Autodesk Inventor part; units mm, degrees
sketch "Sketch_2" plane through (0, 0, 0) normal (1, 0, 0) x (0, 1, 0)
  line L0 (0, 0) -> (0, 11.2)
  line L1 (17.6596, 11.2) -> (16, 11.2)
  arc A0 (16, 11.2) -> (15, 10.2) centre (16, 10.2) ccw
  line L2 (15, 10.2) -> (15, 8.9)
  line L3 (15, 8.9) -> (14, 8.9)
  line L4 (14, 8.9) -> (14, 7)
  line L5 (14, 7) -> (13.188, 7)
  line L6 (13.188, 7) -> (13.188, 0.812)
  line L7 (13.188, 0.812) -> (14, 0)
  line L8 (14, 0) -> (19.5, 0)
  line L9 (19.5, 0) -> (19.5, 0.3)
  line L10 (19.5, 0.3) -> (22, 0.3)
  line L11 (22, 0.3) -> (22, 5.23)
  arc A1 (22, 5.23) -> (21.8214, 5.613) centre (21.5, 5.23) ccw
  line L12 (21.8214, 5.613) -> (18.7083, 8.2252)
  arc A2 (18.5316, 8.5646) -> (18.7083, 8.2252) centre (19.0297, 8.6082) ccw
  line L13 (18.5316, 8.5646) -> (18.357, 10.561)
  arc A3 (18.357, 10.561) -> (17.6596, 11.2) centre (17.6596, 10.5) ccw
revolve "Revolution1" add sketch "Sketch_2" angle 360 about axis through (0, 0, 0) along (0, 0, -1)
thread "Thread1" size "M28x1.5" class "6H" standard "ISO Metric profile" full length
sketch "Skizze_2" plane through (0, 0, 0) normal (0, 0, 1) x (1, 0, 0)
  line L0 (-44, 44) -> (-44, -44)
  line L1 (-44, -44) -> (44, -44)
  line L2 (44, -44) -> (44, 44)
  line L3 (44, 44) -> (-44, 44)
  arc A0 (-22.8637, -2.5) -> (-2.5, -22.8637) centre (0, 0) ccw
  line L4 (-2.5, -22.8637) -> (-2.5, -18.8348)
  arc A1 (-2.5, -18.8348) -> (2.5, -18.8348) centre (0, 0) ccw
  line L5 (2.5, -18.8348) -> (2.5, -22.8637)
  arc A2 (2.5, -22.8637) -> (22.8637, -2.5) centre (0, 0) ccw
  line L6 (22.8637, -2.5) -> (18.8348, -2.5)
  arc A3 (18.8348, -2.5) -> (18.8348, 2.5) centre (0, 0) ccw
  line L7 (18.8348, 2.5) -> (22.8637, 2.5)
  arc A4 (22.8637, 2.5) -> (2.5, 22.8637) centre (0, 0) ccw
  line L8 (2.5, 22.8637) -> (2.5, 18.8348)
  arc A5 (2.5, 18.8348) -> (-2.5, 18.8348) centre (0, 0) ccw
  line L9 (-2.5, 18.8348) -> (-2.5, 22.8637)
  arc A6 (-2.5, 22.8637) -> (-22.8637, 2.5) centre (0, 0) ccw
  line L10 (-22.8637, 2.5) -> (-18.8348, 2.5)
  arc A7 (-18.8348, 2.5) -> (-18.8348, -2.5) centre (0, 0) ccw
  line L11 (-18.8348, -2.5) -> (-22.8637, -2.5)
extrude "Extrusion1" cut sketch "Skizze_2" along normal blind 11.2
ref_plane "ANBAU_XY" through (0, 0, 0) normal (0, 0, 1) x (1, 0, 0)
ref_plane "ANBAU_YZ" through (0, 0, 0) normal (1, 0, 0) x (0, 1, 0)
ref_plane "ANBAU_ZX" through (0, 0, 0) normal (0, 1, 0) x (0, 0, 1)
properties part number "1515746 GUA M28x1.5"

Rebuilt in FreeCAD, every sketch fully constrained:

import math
import FreeCAD as App
import Part
import Sketcher
from FreeCAD import Vector
Q = App.Units.Quantity


def add_polygon(sketch, points):
    """Adds a closed chain of lines whose ends are joined by coincident constraints."""
    first, n = sketch.GeometryCount, len(points)
    for a, b in zip(points, points[1:] + points[:1]):
        sketch.addGeometry(Part.LineSegment(App.Vector(*a, 0), App.Vector(*b, 0)), False)
    for i in range(n):
        sketch.addConstraint(Sketcher.Constraint("Coincident", first + i, 2, first + (i + 1) % n, 1))

doc = App.newDocument("Part")
body = doc.addObject("PartDesign::Body", "Body")

sketch1 = doc.addObject("Sketcher::SketchObject", "Sketch")
body.addObject(sketch1)
sketch1.AttachmentSupport = (doc.YZ_Plane, [""])
sketch1.MapMode = "FlatFace"
sketch1.addGeometry([
    Part.ArcOfCircle(Part.Circle(Vector(17.66, 10.5, 0), Vector(0, 0, 1), 0.7), math.radians(5), math.radians(90)),
    Part.LineSegment(Vector(17.66, 11.2, 0), Vector(16, 11.2, 0)),
    Part.ArcOfCircle(Part.Circle(Vector(16, 10.2, 0), Vector(0, 0, 1), 1), math.radians(90), math.radians(180)),
    Part.LineSegment(Vector(15, 10.2, 0), Vector(15, 8.9, 0)),
    Part.LineSegment(Vector(15, 8.9, 0), Vector(14, 8.9, 0)),
    Part.LineSegment(Vector(14, 8.9, 0), Vector(14, 7, 0)),
    Part.LineSegment(Vector(14, 7, 0), Vector(13.19, 7, 0)),
    Part.LineSegment(Vector(13.19, 7, 0), Vector(13.19, 0.81, 0)),
    Part.LineSegment(Vector(13.19, 0.81, 0), Vector(14, 0, 0)),
    Part.LineSegment(Vector(14, 0, 0), Vector(19.5, 0, 0)),
    Part.LineSegment(Vector(19.5, 0, 0), Vector(19.5, 0.3, 0)),
    Part.LineSegment(Vector(19.5, 0.3, 0), Vector(22, 0.3, 0)),
    Part.LineSegment(Vector(22, 0.3, 0), Vector(22, 5.23, 0)),
    Part.ArcOfCircle(Part.Circle(Vector(21.5, 5.23, 0), Vector(0, 0, 1), 0.5), math.radians(0), math.radians(50)),
    Part.LineSegment(Vector(21.82, 5.61, 0), Vector(18.71, 8.23, 0)),
    Part.ArcOfCircle(Part.Circle(Vector(19.03, 8.61, 0), Vector(0, 0, 1), 0.5), math.radians(-175), math.radians(-130)),
    Part.LineSegment(Vector(18.53, 8.56, 0), Vector(18.36, 10.56, 0)),
], False)
sketch1.addConstraint([
    Sketcher.Constraint("Tangent", 0, 2, 1, 1),
    Sketcher.Constraint("Tangent", 1, 2, 2, 1),
    Sketcher.Constraint("Tangent", 2, 2, 3, 1),
    Sketcher.Constraint("Coincident", 3, 2, 4, 1),
    Sketcher.Constraint("Coincident", 4, 2, 5, 1),
    Sketcher.Constraint("Coincident", 5, 2, 6, 1),
    Sketcher.Constraint("Coincident", 6, 2, 7, 1),
    Sketcher.Constraint("Coincident", 7, 2, 8, 1),
    Sketcher.Constraint("Coincident", 8, 2, 9, 1),
    Sketcher.Constraint("Coincident", 9, 2, 10, 1),
    Sketcher.Constraint("Coincident", 10, 2, 11, 1),
    Sketcher.Constraint("Coincident", 11, 2, 12, 1),
    Sketcher.Constraint("Tangent", 12, 2, 13, 1),
    Sketcher.Constraint("Tangent", 13, 2, 14, 1),
    Sketcher.Constraint("Tangent", 14, 2, 15, 2),
    Sketcher.Constraint("Tangent", 15, 1, 16, 1),
    Sketcher.Constraint("Tangent", 16, 2, 0, 1),
    Sketcher.Constraint("Horizontal", 1),
    Sketcher.Constraint("Vertical", 3),
    Sketcher.Constraint("Horizontal", 4),
    Sketcher.Constraint("Vertical", 5),
    Sketcher.Constraint("Horizontal", 6),
    Sketcher.Constraint("Vertical", 7),
    Sketcher.Constraint("Horizontal", 9),
    Sketcher.Constraint("Vertical", 10),
    Sketcher.Constraint("Horizontal", 11),
    Sketcher.Constraint("Vertical", 12),
    Sketcher.Constraint("Equal", 13, 15),
    Sketcher.Constraint("PointOnObject", 8, 2, -1),
    Sketcher.Constraint("Vertical", 5, 2, 8, 2),
    Sketcher.Constraint("Radius", 2, 1.0),
    Sketcher.Constraint("Radius", 0, 0.7),
    Sketcher.Constraint("Radius", 13, 0.5),
    Sketcher.Constraint("DistanceX", 4, 2, 4, 1, 1.0),
    Sketcher.Constraint("Angle", 8, Q("-45 deg")),
    Sketcher.Constraint("Angle", 14, Q("140 deg")),
    Sketcher.Constraint("DistanceX", 9, 1, 9, 2, 5.5),
    Sketcher.Constraint("DistanceX", 11, 1, 11, 2, 2.5),
    Sketcher.Constraint("DistanceY", 3, 2, 3, 1, 1.3),
    Sketcher.Constraint("DistanceY", 5, 2, 5, 1, 1.9),
    Sketcher.Constraint("DistanceY", 10, 1, 10, 2, 0.3),
    Sketcher.Constraint("DistanceX", -1, 1, 2, 3, 16.0),
    Sketcher.Constraint("DistanceY", -1, 1, 5, 2, 7.0),
    Sketcher.Constraint("DistanceY", 12, 1, 12, 2, 4.93),
    Sketcher.Constraint("DistanceX", 6, 2, 6, 1, 0.812),
    Sketcher.Constraint("DistanceX", 0, 3, 15, 3, 1.37),
    Sketcher.Constraint("Distance", 16, 2.004),
])
revolution = doc.addObject("PartDesign::Revolution", "Revolution")
body.addObject(revolution)
revolution.Profile = sketch1
revolution.ReferenceAxis = (sketch1, ["V_Axis"])
revolution.Angle = 360

sketch2 = doc.addObject("Sketcher::SketchObject", "Sketch001")
body.addObject(sketch2)
sketch2.AttachmentSupport = (doc.XY_Plane, [""])
sketch2.MapMode = "FlatFace"
add_polygon(sketch2, [(44, 44), (-44, 44), (-44, -44), (44, -44)])
sketch2.addGeometry(Part.ArcOfCircle(Part.Circle(Vector(0, 0, 0), Vector(0, 0, 1), 23), math.radians(-174), math.radians(-96)), False)
sketch2.addGeometry(Part.LineSegment(Vector(-22.9, -2.5, 0), Vector(-18.8, -2.5, 0)), False)
sketch2.addGeometry(Part.ArcOfCircle(Part.Circle(Vector(0, 0, 0), Vector(0, 0, 1), 19), math.radians(172.44), math.radians(187.56)), False)
sketch2.addGeometry(Part.LineSegment(Vector(-18.8, 2.5, 0), Vector(-22.9, 2.5, 0)), False)
sketch2.addGeometry(Part.ArcOfCircle(Part.Circle(Vector(0, 0, 0), Vector(0, 0, 1), 23), math.radians(96), math.radians(174)), False)
sketch2.addGeometry(Part.LineSegment(Vector(-2.5, 22.9, 0), Vector(-2.5, 18.8, 0)), False)
sketch2.addGeometry(Part.ArcOfCircle(Part.Circle(Vector(0, 0, 0), Vector(0, 0, 1), 19), math.radians(82.44), math.radians(97.56)), False)
sketch2.addGeometry(Part.LineSegment(Vector(2.5, 18.8, 0), Vector(2.5, 22.9, 0)), False)
sketch2.addGeometry(Part.ArcOfCircle(Part.Circle(Vector(0, 0, 0), Vector(0, 0, 1), 23), math.radians(6), math.radians(84)), False)
sketch2.addGeometry(Part.LineSegment(Vector(22.9, 2.5, 0), Vector(18.8, 2.5, 0)), False)
sketch2.addGeometry(Part.ArcOfCircle(Part.Circle(Vector(0, 0, 0), Vector(0, 0, 1), 19), math.radians(-7.56), math.radians(7.56)), False)
sketch2.addGeometry(Part.LineSegment(Vector(18.8, -2.5, 0), Vector(22.9, -2.5, 0)), False)
sketch2.addGeometry(Part.ArcOfCircle(Part.Circle(Vector(0, 0, 0), Vector(0, 0, 1), 23), math.radians(-84), math.radians(-6)), False)
sketch2.addGeometry(Part.LineSegment(Vector(2.5, -22.9, 0), Vector(2.5, -18.8, 0)), False)
sketch2.addGeometry(Part.ArcOfCircle(Part.Circle(Vector(0, 0, 0), Vector(0, 0, 1), 19), math.radians(-97.56), math.radians(-82.44)), False)
sketch2.addGeometry(Part.LineSegment(Vector(-2.5, -18.8, 0), Vector(-2.5, -22.9, 0)), False)
sketch2.addConstraint([
    Sketcher.Constraint("Coincident", 4, 1, 5, 1),
    Sketcher.Constraint("Coincident", 5, 2, 6, 2),
    Sketcher.Constraint("Coincident", 6, 1, 7, 1),
    Sketcher.Constraint("Coincident", 7, 2, 8, 2),
    Sketcher.Constraint("Coincident", 8, 1, 9, 1),
    Sketcher.Constraint("Coincident", 9, 2, 10, 2),
    Sketcher.Constraint("Coincident", 10, 1, 11, 1),
    Sketcher.Constraint("Coincident", 11, 2, 12, 2),
    Sketcher.Constraint("Coincident", 12, 1, 13, 1),
    Sketcher.Constraint("Coincident", 13, 2, 14, 2),
    Sketcher.Constraint("Coincident", 14, 1, 15, 1),
    Sketcher.Constraint("Coincident", 15, 2, 16, 2),
    Sketcher.Constraint("Coincident", 16, 1, 17, 1),
    Sketcher.Constraint("Coincident", 17, 2, 18, 2),
    Sketcher.Constraint("Coincident", 18, 1, 19, 1),
    Sketcher.Constraint("Coincident", 19, 2, 4, 2),
    Sketcher.Constraint("Horizontal", 0),
    Sketcher.Constraint("Vertical", 1),
    Sketcher.Constraint("Horizontal", 2),
    Sketcher.Constraint("Vertical", 3),
    Sketcher.Constraint("Horizontal", 5),
    Sketcher.Constraint("Horizontal", 7),
    Sketcher.Constraint("Vertical", 9),
    Sketcher.Constraint("Vertical", 11),
    Sketcher.Constraint("Horizontal", 13),
    Sketcher.Constraint("Horizontal", 15),
    Sketcher.Constraint("Vertical", 17),
    Sketcher.Constraint("Vertical", 19),
    Sketcher.Constraint("Coincident", 4, 3, -1, 1),
    Sketcher.Constraint("Coincident", 6, 3, -1, 1),
    Sketcher.Constraint("Coincident", 8, 3, -1, 1),
    Sketcher.Constraint("Coincident", 10, 3, -1, 1),
    Sketcher.Constraint("Coincident", 12, 3, -1, 1),
    Sketcher.Constraint("Coincident", 14, 3, -1, 1),
    Sketcher.Constraint("Coincident", 16, 3, -1, 1),
    Sketcher.Constraint("Coincident", 18, 3, -1, 1),
    Sketcher.Constraint("Equal", 4, 8),
    Sketcher.Constraint("Equal", 6, 10),
    Sketcher.Constraint("Equal", 8, 12),
    Sketcher.Constraint("Equal", 10, 14),
    Sketcher.Constraint("Equal", 12, 16),
    Sketcher.Constraint("Equal", 14, 18),
    Sketcher.Constraint("Symmetric", 0, 2, 2, 2, -1, 1),
    Sketcher.Constraint("Horizontal", 9, 2, 10, 1),
    Sketcher.Constraint("Horizontal", 7, 2, 12, 1),
    Sketcher.Constraint("Horizontal", 5, 2, 14, 1),
    Sketcher.Constraint("Horizontal", 17, 2, 18, 1),
    Sketcher.Constraint("Vertical", 5, 2, 6, 1),
    Sketcher.Constraint("Vertical", 11, 2, 16, 1),
    Sketcher.Constraint("Equal", 2, 1),
    Sketcher.Constraint("Equal", 15, 9),
    Sketcher.Constraint("Radius", 4, 23.0),
    Sketcher.Constraint("Radius", 6, 19.0),
    Sketcher.Constraint("DistanceX", 0, 2, 0, 1, 88.0),
    Sketcher.Constraint("DistanceY", 5, 2, 6, 1, 5.0),
])
pocket1 = doc.addObject("PartDesign::Pocket", "Pocket")
body.addObject(pocket1)
pocket1.Profile = sketch2
pocket1.Length = 11.2
pocket1.Reversed = True

doc.recompute()
